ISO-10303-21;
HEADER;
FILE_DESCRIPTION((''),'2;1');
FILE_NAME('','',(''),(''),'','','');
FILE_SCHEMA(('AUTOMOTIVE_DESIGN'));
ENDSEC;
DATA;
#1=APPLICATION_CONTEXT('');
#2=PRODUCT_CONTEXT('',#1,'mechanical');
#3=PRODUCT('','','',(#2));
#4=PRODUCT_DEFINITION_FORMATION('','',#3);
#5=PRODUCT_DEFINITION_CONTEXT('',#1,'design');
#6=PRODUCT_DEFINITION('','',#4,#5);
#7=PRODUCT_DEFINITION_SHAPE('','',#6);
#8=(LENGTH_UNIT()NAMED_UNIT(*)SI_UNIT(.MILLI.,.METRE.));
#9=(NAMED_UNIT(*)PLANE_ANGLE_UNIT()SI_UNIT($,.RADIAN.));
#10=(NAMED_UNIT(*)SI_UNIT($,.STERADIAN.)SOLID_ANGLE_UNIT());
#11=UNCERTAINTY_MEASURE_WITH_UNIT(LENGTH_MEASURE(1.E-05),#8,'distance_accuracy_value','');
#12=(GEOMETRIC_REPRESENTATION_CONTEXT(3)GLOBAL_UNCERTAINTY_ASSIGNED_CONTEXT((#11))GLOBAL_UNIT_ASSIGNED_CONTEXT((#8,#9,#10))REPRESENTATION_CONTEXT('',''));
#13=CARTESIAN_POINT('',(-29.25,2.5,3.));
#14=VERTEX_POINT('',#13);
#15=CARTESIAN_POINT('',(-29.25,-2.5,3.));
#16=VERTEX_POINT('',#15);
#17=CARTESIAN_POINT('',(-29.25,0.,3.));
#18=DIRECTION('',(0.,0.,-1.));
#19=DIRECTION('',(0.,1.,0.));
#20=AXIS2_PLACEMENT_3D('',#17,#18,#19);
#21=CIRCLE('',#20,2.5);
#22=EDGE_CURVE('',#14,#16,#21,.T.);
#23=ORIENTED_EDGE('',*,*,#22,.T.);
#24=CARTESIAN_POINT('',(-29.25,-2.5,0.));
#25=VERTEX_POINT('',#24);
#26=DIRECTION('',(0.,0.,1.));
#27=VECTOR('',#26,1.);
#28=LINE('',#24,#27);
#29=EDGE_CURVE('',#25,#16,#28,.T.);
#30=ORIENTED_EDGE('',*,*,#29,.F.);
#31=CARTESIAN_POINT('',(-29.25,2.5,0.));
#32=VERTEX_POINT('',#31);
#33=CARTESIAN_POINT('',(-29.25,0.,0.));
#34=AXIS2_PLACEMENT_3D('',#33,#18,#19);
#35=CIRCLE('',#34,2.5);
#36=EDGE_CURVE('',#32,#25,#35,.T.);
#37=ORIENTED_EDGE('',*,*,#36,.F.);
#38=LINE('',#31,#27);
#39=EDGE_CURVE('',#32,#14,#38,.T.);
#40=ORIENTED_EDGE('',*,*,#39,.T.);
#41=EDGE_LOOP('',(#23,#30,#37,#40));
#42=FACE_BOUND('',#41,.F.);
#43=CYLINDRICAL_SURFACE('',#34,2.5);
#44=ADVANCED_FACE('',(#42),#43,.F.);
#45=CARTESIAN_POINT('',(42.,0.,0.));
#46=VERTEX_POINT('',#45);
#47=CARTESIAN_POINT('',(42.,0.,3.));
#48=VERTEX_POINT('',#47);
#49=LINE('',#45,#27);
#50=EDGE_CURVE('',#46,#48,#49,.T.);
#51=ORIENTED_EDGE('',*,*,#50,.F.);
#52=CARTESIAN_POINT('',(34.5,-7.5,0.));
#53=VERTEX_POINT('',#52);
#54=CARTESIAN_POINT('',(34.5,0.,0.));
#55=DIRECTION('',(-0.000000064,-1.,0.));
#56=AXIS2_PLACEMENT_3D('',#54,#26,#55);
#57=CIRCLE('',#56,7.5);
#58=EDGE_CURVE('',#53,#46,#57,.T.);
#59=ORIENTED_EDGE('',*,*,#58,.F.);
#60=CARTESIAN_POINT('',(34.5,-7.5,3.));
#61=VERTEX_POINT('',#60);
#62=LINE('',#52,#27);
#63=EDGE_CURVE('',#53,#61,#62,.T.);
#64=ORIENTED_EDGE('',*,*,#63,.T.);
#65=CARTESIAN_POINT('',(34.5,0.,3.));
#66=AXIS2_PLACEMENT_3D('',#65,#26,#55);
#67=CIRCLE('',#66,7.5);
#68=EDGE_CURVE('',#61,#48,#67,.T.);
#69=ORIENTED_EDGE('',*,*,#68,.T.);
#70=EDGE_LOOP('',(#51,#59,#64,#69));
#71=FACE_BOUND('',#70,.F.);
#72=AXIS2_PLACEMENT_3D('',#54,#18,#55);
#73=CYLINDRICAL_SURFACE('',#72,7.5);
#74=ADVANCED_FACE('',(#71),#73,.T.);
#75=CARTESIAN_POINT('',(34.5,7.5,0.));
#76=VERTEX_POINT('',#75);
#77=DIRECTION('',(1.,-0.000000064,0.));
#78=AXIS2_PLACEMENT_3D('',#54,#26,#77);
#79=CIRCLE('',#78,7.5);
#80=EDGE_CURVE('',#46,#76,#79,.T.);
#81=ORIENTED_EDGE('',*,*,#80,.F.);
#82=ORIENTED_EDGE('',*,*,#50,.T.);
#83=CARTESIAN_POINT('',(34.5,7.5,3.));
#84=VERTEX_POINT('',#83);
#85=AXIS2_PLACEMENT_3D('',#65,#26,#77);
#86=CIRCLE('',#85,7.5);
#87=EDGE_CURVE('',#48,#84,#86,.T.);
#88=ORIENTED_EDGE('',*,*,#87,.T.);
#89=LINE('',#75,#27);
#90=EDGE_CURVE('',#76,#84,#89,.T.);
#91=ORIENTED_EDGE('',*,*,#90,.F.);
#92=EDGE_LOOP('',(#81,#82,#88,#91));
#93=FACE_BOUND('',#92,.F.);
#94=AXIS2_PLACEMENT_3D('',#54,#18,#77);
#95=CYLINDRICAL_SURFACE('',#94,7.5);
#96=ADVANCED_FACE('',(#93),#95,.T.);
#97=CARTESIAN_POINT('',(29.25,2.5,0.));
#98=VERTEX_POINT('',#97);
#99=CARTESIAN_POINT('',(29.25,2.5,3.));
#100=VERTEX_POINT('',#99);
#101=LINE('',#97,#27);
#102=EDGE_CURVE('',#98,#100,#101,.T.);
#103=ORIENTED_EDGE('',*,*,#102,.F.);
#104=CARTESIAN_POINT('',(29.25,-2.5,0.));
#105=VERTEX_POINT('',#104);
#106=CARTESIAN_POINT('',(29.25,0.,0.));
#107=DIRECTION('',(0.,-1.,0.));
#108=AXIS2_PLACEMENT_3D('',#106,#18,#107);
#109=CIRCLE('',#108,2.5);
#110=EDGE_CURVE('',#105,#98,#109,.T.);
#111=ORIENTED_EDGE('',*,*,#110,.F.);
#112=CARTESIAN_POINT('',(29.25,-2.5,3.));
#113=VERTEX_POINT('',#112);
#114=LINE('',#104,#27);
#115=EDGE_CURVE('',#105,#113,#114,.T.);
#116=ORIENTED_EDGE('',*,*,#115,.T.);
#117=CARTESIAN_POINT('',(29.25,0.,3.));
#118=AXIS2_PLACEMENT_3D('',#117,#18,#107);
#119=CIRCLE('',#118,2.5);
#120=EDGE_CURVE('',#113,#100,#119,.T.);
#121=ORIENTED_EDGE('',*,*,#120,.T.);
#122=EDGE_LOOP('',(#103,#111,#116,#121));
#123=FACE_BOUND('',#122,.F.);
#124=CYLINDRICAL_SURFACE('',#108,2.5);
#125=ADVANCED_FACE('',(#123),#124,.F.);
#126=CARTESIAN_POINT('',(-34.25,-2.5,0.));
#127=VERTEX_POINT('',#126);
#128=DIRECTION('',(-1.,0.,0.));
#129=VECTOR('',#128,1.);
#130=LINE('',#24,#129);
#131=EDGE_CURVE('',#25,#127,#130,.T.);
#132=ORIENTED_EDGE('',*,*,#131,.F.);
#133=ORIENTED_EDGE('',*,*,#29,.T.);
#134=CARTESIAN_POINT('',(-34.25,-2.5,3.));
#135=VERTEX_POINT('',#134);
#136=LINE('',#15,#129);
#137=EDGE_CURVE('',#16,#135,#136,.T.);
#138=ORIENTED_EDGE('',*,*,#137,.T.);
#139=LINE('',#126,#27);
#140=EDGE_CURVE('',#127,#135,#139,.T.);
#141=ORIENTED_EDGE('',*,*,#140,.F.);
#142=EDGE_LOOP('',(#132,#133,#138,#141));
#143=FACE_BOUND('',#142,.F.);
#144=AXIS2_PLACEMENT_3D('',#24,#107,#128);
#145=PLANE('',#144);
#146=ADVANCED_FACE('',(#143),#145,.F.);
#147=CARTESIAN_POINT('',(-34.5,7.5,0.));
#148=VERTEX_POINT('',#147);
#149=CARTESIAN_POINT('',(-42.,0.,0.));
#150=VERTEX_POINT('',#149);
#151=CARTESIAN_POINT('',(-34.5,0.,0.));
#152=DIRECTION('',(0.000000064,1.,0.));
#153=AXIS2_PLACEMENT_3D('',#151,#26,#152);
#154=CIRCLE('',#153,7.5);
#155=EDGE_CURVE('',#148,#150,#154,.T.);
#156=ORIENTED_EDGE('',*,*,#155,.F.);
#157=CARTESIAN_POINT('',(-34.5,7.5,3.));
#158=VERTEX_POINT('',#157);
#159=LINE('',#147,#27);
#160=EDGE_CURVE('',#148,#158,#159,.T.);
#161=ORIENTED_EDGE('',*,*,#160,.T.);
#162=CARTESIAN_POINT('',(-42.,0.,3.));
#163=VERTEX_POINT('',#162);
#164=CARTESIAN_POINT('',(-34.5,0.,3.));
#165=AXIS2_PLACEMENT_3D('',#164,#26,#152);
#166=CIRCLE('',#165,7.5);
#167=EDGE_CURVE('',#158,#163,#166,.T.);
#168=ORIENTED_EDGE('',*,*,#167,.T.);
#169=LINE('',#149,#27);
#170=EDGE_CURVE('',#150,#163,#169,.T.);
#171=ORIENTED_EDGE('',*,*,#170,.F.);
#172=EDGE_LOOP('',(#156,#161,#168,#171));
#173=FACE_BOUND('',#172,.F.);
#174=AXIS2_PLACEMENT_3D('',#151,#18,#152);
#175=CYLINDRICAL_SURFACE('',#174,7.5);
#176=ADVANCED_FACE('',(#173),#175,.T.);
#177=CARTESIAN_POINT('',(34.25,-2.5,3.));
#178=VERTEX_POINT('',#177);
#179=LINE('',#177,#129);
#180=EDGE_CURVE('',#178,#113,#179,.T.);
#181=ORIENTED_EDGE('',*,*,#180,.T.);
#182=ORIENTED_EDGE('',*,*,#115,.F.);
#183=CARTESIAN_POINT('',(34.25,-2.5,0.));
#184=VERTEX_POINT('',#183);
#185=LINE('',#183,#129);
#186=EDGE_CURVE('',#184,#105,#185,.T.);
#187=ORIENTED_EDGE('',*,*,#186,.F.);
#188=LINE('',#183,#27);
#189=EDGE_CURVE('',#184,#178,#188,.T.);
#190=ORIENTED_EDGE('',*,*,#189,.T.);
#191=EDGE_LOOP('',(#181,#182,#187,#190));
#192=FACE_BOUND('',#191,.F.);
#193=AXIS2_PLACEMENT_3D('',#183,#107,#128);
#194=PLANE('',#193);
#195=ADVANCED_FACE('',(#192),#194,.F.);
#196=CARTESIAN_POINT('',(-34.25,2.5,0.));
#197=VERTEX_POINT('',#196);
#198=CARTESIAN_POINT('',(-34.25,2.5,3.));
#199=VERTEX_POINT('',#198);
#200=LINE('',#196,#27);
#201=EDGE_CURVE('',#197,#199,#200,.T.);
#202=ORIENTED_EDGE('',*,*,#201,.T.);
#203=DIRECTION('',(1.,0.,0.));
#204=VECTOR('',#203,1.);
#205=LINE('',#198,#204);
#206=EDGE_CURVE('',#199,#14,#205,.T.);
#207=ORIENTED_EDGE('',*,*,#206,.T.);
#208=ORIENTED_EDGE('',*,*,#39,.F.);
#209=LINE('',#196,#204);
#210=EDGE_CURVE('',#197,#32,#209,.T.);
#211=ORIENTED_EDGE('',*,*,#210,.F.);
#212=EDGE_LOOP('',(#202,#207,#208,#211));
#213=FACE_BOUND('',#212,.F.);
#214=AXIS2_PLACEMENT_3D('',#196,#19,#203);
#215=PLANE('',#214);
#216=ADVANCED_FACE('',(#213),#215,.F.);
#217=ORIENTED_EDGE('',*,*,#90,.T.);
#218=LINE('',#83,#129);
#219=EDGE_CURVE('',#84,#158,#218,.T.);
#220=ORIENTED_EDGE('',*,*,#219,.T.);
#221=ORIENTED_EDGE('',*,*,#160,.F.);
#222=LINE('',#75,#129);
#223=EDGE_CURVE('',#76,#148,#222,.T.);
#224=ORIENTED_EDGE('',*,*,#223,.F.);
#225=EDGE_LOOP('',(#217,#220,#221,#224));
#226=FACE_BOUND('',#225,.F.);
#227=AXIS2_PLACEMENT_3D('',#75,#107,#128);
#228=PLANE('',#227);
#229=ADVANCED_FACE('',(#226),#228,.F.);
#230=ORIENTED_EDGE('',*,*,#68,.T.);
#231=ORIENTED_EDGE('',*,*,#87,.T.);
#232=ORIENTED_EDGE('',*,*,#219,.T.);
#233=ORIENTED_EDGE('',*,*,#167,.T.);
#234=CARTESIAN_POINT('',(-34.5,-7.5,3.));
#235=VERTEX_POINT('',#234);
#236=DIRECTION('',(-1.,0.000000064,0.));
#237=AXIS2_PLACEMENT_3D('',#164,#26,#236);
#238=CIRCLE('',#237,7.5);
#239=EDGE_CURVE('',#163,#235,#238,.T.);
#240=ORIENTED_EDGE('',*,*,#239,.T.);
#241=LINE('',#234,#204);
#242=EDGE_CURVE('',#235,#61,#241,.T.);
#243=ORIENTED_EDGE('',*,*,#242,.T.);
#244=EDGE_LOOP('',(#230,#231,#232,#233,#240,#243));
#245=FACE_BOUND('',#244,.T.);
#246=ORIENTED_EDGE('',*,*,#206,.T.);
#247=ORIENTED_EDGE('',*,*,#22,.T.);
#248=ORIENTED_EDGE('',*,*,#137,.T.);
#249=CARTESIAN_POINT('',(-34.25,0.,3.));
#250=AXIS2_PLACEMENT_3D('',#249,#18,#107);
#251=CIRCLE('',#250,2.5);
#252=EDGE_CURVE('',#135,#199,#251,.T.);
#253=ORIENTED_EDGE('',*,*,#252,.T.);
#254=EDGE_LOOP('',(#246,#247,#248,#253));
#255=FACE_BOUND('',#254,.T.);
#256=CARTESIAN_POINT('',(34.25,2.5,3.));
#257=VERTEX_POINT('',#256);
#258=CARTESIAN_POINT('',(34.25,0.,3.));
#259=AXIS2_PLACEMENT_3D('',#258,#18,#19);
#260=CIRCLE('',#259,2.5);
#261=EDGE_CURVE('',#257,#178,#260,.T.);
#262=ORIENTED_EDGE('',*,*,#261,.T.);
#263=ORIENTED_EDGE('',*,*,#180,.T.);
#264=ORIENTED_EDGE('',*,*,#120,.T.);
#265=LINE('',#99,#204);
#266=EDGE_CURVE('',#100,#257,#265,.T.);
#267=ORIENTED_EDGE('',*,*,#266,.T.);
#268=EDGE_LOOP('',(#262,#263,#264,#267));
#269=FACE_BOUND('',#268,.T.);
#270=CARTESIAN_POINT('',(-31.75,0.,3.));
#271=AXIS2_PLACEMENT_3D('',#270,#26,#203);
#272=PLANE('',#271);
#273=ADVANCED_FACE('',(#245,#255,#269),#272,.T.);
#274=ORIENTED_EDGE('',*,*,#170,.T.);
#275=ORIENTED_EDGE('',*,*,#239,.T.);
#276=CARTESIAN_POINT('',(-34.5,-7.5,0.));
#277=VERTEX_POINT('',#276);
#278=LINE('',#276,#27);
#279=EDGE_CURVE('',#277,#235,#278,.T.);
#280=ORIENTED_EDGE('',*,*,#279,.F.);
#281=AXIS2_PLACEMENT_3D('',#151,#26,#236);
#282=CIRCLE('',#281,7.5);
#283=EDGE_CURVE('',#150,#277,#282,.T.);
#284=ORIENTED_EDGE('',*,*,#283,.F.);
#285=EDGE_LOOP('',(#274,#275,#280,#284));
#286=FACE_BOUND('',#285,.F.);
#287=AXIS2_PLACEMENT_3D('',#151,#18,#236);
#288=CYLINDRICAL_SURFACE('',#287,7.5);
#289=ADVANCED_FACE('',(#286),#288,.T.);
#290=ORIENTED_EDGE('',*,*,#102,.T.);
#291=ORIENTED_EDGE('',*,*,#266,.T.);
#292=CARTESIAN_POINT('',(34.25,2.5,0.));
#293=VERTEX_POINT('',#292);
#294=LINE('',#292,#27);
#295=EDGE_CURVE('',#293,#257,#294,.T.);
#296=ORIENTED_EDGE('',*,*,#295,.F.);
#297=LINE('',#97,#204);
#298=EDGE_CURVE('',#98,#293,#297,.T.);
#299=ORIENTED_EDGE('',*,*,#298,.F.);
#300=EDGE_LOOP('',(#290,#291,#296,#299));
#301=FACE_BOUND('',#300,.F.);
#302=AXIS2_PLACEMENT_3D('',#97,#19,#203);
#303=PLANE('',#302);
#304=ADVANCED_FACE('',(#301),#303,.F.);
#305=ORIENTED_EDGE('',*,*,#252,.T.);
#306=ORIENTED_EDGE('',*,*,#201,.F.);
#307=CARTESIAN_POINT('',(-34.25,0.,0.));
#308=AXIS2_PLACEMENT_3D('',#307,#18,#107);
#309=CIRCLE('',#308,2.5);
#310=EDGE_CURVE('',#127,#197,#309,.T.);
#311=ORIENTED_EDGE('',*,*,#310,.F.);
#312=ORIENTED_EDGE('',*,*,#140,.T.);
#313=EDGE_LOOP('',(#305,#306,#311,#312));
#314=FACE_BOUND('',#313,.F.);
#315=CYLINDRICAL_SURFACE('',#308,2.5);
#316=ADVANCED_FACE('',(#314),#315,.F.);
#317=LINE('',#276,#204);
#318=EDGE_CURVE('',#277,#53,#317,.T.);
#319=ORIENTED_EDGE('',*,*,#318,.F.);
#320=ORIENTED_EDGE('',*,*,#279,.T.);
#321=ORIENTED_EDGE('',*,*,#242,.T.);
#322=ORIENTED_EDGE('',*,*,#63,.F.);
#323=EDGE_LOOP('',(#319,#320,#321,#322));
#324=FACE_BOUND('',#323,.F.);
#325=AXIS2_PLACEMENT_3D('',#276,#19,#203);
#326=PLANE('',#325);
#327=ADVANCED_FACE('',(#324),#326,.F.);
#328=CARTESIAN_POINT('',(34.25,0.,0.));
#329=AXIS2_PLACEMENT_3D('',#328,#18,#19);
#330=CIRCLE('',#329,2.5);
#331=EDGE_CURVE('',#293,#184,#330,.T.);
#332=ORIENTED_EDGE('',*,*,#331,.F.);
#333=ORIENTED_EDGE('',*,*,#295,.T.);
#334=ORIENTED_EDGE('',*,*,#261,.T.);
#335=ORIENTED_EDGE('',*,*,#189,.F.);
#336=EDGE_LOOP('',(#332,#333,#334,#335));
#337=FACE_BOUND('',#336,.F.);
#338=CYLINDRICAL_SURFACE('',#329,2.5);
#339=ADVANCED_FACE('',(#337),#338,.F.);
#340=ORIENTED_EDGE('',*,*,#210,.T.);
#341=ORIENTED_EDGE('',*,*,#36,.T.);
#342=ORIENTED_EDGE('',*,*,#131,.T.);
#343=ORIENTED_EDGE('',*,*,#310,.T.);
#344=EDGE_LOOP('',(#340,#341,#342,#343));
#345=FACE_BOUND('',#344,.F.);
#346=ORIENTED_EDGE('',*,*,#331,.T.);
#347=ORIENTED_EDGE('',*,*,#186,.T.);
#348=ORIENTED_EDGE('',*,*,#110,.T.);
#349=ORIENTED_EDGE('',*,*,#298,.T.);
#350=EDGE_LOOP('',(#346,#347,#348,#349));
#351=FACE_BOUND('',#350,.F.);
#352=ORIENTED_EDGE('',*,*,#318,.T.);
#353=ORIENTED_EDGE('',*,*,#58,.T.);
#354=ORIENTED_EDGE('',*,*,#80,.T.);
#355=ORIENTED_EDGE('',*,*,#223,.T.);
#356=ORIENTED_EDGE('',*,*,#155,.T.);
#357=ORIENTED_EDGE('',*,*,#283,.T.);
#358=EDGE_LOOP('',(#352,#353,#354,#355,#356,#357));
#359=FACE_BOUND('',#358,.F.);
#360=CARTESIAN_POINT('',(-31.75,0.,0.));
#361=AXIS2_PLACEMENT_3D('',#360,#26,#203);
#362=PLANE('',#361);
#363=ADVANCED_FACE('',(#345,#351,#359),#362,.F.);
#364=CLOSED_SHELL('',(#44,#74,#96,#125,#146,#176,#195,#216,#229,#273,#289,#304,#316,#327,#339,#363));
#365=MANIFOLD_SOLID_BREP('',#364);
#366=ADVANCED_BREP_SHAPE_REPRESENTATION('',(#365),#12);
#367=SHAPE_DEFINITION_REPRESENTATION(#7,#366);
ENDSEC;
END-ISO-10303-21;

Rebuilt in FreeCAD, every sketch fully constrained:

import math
import FreeCAD as App
import Part
import Sketcher

doc = App.newDocument("Part")
params = doc.addObject("Spreadsheet::Sheet", "Params")
for row, (alias, value) in enumerate([
    ("sketch1_radius", "7.5 mm"),
    ("sketch1_radius2", "2.5 mm"),
    ("sketch1_width", "69 mm"),
    ("sketch1_width2", "5 mm"),
    ("pad1_length", "3 mm"),
], start=1):
    params.set(f"A{row}", alias)
    params.set(f"B{row}", "=" + value)
    params.setAlias(f"B{row}", alias)

body = doc.addObject("PartDesign::Body", "Body")

# Sketch on XY plane
sketch1 = doc.addObject("Sketcher::SketchObject", "Sketch")
body.addObject(sketch1)
sketch1.AttachmentSupport = (doc.XY_Plane, [""])
sketch1.MapMode = "FlatFace"
sketch1.addGeometry(Part.LineSegment(App.Vector(-34.5, -7.5, 0), App.Vector(34.5, -7.5, 0)), False)
sketch1.addGeometry(Part.ArcOfCircle(Part.Circle(App.Vector(34.5, 0, 0), App.Vector(0, 0, 1), 7.5), math.radians(-90), math.radians(0)), False)
sketch1.addGeometry(Part.ArcOfCircle(Part.Circle(App.Vector(34.5, 0, 0), App.Vector(0, 0, 1), 7.5), math.radians(0), math.radians(90)), False)
sketch1.addGeometry(Part.LineSegment(App.Vector(34.5, 7.5, 0), App.Vector(-34.5, 7.5, 0)), False)
sketch1.addGeometry(Part.ArcOfCircle(Part.Circle(App.Vector(-34.5, 0, 0), App.Vector(0, 0, 1), 7.5), math.radians(90), math.radians(180)), False)
sketch1.addGeometry(Part.ArcOfCircle(Part.Circle(App.Vector(-34.5, 0, 0), App.Vector(0, 0, 1), 7.5), math.radians(180), math.radians(270)), False)
sketch1.addGeometry(Part.ArcOfCircle(Part.Circle(App.Vector(-29.2, 0, 0), App.Vector(0, 0, 1), 2.5), math.radians(-90), math.radians(90)), False)
sketch1.addGeometry(Part.LineSegment(App.Vector(-29.2, -2.5, 0), App.Vector(-34.2, -2.5, 0)), False)
sketch1.addGeometry(Part.ArcOfCircle(Part.Circle(App.Vector(-34.2, 0, 0), App.Vector(0, 0, 1), 2.5), math.radians(90), math.radians(270)), False)
sketch1.addGeometry(Part.LineSegment(App.Vector(-34.2, 2.5, 0), App.Vector(-29.2, 2.5, 0)), False)
sketch1.addGeometry(Part.LineSegment(App.Vector(34.2, -2.5, 0), App.Vector(29.2, -2.5, 0)), False)
sketch1.addGeometry(Part.ArcOfCircle(Part.Circle(App.Vector(29.2, 0, 0), App.Vector(0, 0, 1), 2.5), math.radians(90), math.radians(270)), False)
sketch1.addGeometry(Part.LineSegment(App.Vector(29.2, 2.5, 0), App.Vector(34.2, 2.5, 0)), False)
sketch1.addGeometry(Part.ArcOfCircle(Part.Circle(App.Vector(34.2, 0, 0), App.Vector(0, 0, 1), 2.5), math.radians(-90), math.radians(90)), False)
sketch1.addConstraint(Sketcher.Constraint("Tangent", 0, 2, 1, 1))
sketch1.addConstraint(Sketcher.Constraint("Tangent", 1, 2, 2, 1))
sketch1.addConstraint(Sketcher.Constraint("Tangent", 2, 2, 3, 1))
sketch1.addConstraint(Sketcher.Constraint("Tangent", 3, 2, 4, 1))
sketch1.addConstraint(Sketcher.Constraint("Tangent", 4, 2, 5, 1))
sketch1.addConstraint(Sketcher.Constraint("Tangent", 5, 2, 0, 1))
sketch1.addConstraint(Sketcher.Constraint("Tangent", 6, 1, 7, 1))
sketch1.addConstraint(Sketcher.Constraint("Tangent", 7, 2, 8, 2))
sketch1.addConstraint(Sketcher.Constraint("Tangent", 8, 1, 9, 1))
sketch1.addConstraint(Sketcher.Constraint("Tangent", 9, 2, 6, 2))
sketch1.addConstraint(Sketcher.Constraint("Tangent", 10, 2, 11, 2))
sketch1.addConstraint(Sketcher.Constraint("Tangent", 11, 1, 12, 1))
sketch1.addConstraint(Sketcher.Constraint("Tangent", 12, 2, 13, 2))
sketch1.addConstraint(Sketcher.Constraint("Tangent", 13, 1, 10, 1))
sketch1.addConstraint(Sketcher.Constraint("Horizontal", 0))
sketch1.addConstraint(Sketcher.Constraint("Horizontal", 3))
sketch1.addConstraint(Sketcher.Constraint("Horizontal", 7))
sketch1.addConstraint(Sketcher.Constraint("Horizontal", 9))
sketch1.addConstraint(Sketcher.Constraint("Horizontal", 10))
sketch1.addConstraint(Sketcher.Constraint("Horizontal", 12))
sketch1.addConstraint(Sketcher.Constraint("Equal", 1, 2))
sketch1.addConstraint(Sketcher.Constraint("Equal", 2, 4))
sketch1.addConstraint(Sketcher.Constraint("Equal", 8, 11))
sketch1.addConstraint(Sketcher.Constraint("Symmetric", 1, 3, 4, 3, -1, 1))
sketch1.addConstraint(Sketcher.Constraint("Symmetric", 6, 3, 11, 3, -1, 1))
sketch1.addConstraint(Sketcher.Constraint("Symmetric", 8, 3, 13, 3, -2))
sketch1.addConstraint(Sketcher.Constraint("PointOnObject", 1, 2, -1))
sketch1.addConstraint(Sketcher.Constraint("PointOnObject", 4, 2, -1))
sketch1.addConstraint(Sketcher.Constraint("Radius", 1, 7.5))
sketch1.addConstraint(Sketcher.Constraint("Radius", 6, 2.5))
sketch1.addConstraint(Sketcher.Constraint("DistanceX", 0, 1, 0, 2, 69.0))
sketch1.addConstraint(Sketcher.Constraint("DistanceX", 7, 2, 7, 1, 5.0))
sketch1.addConstraint(Sketcher.Constraint("DistanceX", 6, 3, 11, 3, 58.5))
sketch1.setExpression("Constraints[28]", "Params.sketch1_radius")
sketch1.setExpression("Constraints[29]", "Params.sketch1_radius2")
sketch1.setExpression("Constraints[30]", "Params.sketch1_width")
sketch1.setExpression("Constraints[31]", "Params.sketch1_width2")
pad1 = doc.addObject("PartDesign::Pad", "Pad")
body.addObject(pad1)
pad1.Profile = sketch1
pad1.setExpression("Length", "Params.pad1_length")

doc.recompute()
